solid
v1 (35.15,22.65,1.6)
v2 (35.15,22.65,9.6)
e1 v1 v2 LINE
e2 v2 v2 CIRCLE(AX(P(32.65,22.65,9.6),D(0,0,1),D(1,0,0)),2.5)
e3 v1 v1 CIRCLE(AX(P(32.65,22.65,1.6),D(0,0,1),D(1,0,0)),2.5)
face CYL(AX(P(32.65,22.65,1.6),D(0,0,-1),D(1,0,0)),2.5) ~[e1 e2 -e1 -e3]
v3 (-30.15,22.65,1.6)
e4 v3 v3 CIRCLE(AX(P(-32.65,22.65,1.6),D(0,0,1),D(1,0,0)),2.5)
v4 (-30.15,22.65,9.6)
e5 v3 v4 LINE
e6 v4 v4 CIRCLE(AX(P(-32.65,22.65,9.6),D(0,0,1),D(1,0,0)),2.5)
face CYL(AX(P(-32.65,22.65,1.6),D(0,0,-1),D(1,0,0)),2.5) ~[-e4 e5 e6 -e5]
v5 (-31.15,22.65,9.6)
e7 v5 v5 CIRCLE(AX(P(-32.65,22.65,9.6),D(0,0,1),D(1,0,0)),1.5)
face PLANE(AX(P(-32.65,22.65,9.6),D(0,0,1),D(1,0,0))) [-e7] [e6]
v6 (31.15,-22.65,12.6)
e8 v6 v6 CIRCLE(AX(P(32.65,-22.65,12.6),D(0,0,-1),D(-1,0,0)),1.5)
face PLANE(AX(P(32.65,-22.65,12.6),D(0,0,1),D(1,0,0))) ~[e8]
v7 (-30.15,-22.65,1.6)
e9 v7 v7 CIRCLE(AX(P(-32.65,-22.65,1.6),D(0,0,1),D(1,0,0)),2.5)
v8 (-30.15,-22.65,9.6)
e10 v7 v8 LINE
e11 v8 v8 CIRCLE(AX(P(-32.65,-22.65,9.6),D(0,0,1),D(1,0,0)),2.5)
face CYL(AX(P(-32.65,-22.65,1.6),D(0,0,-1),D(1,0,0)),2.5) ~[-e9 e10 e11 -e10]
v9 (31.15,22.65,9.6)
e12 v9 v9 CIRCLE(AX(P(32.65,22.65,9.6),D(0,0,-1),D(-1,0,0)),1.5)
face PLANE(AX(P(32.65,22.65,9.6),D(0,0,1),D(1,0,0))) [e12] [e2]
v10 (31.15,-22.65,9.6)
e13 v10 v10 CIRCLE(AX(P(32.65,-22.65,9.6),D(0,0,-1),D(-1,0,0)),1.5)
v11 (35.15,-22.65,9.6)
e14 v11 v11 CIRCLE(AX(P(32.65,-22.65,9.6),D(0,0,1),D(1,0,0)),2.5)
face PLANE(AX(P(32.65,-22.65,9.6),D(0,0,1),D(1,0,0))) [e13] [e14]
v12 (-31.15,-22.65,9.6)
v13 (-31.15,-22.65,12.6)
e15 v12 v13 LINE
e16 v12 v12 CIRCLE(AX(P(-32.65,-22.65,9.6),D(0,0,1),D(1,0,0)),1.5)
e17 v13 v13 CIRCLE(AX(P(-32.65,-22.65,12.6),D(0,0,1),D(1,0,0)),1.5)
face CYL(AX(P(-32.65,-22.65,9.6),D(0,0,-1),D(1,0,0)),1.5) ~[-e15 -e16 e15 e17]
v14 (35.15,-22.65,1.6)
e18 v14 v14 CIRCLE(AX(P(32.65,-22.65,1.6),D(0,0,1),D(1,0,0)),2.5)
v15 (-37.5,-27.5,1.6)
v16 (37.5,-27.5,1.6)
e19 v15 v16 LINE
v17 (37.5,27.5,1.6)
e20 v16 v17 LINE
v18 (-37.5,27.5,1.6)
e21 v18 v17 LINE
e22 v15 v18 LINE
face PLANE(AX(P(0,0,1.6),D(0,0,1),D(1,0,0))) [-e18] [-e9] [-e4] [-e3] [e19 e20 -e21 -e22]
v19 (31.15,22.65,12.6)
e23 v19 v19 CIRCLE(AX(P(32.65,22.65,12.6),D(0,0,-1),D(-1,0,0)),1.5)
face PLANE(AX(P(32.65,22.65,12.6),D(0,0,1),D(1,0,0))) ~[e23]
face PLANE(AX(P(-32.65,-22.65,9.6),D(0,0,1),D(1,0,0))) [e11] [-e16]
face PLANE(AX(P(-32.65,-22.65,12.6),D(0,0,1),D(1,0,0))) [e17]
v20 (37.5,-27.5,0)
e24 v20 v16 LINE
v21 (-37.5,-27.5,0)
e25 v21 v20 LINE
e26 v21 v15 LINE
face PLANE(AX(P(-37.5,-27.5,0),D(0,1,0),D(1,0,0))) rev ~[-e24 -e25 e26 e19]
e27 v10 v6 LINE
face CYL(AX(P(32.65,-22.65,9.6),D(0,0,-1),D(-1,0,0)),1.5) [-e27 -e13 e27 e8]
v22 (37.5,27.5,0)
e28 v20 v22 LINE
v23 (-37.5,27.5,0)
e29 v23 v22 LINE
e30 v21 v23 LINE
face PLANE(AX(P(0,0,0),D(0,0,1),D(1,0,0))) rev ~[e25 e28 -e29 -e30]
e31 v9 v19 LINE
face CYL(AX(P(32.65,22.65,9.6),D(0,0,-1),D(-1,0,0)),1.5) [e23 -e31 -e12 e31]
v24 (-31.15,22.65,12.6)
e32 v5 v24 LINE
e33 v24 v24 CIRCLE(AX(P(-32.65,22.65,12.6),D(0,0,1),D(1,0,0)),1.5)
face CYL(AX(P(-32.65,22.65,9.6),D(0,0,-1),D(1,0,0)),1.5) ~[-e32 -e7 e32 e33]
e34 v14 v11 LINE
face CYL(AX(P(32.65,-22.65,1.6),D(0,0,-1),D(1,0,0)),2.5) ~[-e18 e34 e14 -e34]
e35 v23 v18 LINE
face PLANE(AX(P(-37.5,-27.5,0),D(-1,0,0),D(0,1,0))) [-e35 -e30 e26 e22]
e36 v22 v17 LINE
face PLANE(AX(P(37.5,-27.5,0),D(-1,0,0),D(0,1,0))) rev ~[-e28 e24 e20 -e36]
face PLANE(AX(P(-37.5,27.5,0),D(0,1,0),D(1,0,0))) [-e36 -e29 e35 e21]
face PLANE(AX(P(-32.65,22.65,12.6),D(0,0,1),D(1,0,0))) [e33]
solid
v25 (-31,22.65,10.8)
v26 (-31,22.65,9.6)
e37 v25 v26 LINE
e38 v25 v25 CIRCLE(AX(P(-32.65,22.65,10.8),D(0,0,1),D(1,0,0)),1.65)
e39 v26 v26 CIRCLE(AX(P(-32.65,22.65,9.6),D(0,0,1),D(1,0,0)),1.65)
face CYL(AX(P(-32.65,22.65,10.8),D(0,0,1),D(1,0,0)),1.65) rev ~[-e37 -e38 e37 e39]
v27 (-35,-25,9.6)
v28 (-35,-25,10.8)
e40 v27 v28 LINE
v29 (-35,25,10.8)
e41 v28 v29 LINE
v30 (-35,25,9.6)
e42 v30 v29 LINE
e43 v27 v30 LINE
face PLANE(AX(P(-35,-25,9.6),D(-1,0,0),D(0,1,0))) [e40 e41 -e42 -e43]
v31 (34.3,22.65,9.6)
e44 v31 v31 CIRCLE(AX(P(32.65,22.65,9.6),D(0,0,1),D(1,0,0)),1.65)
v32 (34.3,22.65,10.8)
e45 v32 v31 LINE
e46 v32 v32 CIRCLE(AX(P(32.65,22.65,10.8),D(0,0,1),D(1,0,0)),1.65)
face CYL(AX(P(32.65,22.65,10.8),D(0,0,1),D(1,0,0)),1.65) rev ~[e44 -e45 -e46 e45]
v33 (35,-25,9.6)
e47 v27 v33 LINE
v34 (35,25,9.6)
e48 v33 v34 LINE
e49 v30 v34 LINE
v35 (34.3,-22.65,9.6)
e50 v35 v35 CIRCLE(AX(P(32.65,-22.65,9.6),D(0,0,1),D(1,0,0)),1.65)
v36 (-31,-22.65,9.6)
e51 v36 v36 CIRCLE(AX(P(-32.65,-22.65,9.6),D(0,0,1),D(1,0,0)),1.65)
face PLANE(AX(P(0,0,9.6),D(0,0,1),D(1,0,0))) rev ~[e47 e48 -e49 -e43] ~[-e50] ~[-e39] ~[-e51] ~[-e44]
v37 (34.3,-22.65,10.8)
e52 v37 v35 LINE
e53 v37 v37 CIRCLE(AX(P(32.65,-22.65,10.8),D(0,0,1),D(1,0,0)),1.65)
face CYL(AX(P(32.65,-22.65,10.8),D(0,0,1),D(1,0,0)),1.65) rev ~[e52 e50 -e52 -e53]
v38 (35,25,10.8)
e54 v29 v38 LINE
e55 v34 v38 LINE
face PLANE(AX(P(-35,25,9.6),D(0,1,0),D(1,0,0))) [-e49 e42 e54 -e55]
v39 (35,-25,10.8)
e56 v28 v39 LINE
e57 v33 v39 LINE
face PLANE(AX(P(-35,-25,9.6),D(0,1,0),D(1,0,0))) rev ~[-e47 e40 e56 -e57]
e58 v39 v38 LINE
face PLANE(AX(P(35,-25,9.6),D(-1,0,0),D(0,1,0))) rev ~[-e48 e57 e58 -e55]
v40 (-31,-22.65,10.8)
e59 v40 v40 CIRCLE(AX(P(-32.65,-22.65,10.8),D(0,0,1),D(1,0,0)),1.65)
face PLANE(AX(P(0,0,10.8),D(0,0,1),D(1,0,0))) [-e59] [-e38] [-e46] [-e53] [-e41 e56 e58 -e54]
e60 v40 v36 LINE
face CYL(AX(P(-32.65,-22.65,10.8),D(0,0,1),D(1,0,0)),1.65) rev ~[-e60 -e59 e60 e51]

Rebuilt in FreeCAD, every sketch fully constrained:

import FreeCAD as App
import Part
import Sketcher

V = App.Vector

doc = App.newDocument("Part")
body = doc.addObject("PartDesign::Body", "Body")

sketch1 = doc.addObject("Sketcher::SketchObject", "Sketch")
body.addObject(sketch1)
sketch1.AttachmentSupport = (doc.XY_Plane, [""])
sketch1.MapMode = "FlatFace"
sketch1.addGeometry(Part.LineSegment(V(-35, 25, 0), V(-35, -25, 0)), False)
sketch1.addGeometry(Part.LineSegment(V(-35, -25, 0), V(35, -25, 0)), False)
sketch1.addGeometry(Part.LineSegment(V(35, -25, 0), V(35, 25, 0)), False)
sketch1.addGeometry(Part.LineSegment(V(35, 25, 0), V(-35, 25, 0)), False)
sketch1.addConstraint(Sketcher.Constraint("Coincident", 0, 2, 1, 1))
sketch1.addConstraint(Sketcher.Constraint("Coincident", 1, 2, 2, 1))
sketch1.addConstraint(Sketcher.Constraint("Coincident", 2, 2, 3, 1))
sketch1.addConstraint(Sketcher.Constraint("Coincident", 3, 2, 0, 1))
sketch1.addConstraint(Sketcher.Constraint("Vertical", 0))
sketch1.addConstraint(Sketcher.Constraint("Horizontal", 1))
sketch1.addConstraint(Sketcher.Constraint("Vertical", 2))
sketch1.addConstraint(Sketcher.Constraint("Horizontal", 3))
sketch1.addConstraint(Sketcher.Constraint("Symmetric", 0, 2, 2, 2, -1, 1))
sketch1.addConstraint(Sketcher.Constraint("DistanceX", 1, 1, 1, 2, 70.0))
sketch1.addConstraint(Sketcher.Constraint("DistanceY", 0, 2, 0, 1, 50.0))
pad1 = doc.addObject("PartDesign::Pad", "Pad")
body.addObject(pad1)
pad1.Profile = sketch1
pad1.Length = 1.2

sketch2 = doc.addObject("Sketcher::SketchObject", "Sketch001")
body.addObject(sketch2)
sketch2.AttachmentSupport = (doc.XY_Plane, [""])
sketch2.MapMode = "FlatFace"
sketch2.AttachmentOffset = App.Placement(V(0, 0, 1.2), App.Rotation())
sketch2.addGeometry(Part.Circle(V(-32.65, 22.65, 0), V(0, 0, 1), 1.65), False)
sketch2.addGeometry(Part.Circle(V(32.65, 22.65, 0), V(0, 0, 1), 1.65), False)
sketch2.addGeometry(Part.Circle(V(-32.65, -22.65, 0), V(0, 0, 1), 1.65), False)
sketch2.addGeometry(Part.Circle(V(32.65, -22.65, 0), V(0, 0, 1), 1.65), False)
sketch2.addConstraint(Sketcher.Constraint("Equal", 0, 1))
sketch2.addConstraint(Sketcher.Constraint("Equal", 1, 2))
sketch2.addConstraint(Sketcher.Constraint("Equal", 2, 3))
sketch2.addConstraint(Sketcher.Constraint("Symmetric", 1, 3, 2, 3, -1, 1))
sketch2.addConstraint(Sketcher.Constraint("Symmetric", 0, 3, 3, 3, -1, 1))
sketch2.addConstraint(Sketcher.Constraint("Symmetric", 0, 3, 1, 3, -2))
sketch2.addConstraint(Sketcher.Constraint("Diameter", 0, 3.3))
sketch2.addConstraint(Sketcher.Constraint("DistanceX", 0, 3, 1, 3, 65.3))
sketch2.addConstraint(Sketcher.Constraint("DistanceY", 2, 3, 0, 3, 45.3))
pocket1 = doc.addObject("PartDesign::Pocket", "Pocket")
body.addObject(pocket1)
pocket1.Profile = sketch2
pocket1.Length = 1.2
body2 = doc.addObject("PartDesign::Body", "Body001")
doc.recompute()

body.Placement = App.Placement(V(0, 0, 9.6), App.Rotation(V(0, 0, 1), 0))
boolean = doc.addObject("PartDesign::Boolean", "Boolean")
body2.addObject(boolean)
boolean.Type = "Fuse"
boolean.addObjects([body])
body3 = doc.addObject("PartDesign::Body", "Body002")

sketch3 = doc.addObject("Sketcher::SketchObject", "Sketch002")
body3.addObject(sketch3)
sketch3.AttachmentSupport = (doc.getObject("XY_Plane002"), [""])
sketch3.MapMode = "FlatFace"
sketch3.addGeometry(Part.LineSegment(V(-37.5, 27.5, 0), V(-37.5, -27.5, 0)), False)
sketch3.addGeometry(Part.LineSegment(V(-37.5, -27.5, 0), V(37.5, -27.5, 0)), False)
sketch3.addGeometry(Part.LineSegment(V(37.5, -27.5, 0), V(37.5, 27.5, 0)), False)
sketch3.addGeometry(Part.LineSegment(V(37.5, 27.5, 0), V(-37.5, 27.5, 0)), False)
sketch3.addConstraint(Sketcher.Constraint("Coincident", 0, 2, 1, 1))
sketch3.addConstraint(Sketcher.Constraint("Coincident", 1, 2, 2, 1))
sketch3.addConstraint(Sketcher.Constraint("Coincident", 2, 2, 3, 1))
sketch3.addConstraint(Sketcher.Constraint("Coincident", 3, 2, 0, 1))
sketch3.addConstraint(Sketcher.Constraint("Vertical", 0))
sketch3.addConstraint(Sketcher.Constraint("Horizontal", 1))
sketch3.addConstraint(Sketcher.Constraint("Vertical", 2))
sketch3.addConstraint(Sketcher.Constraint("Horizontal", 3))
sketch3.addConstraint(Sketcher.Constraint("Symmetric", 0, 2, 2, 2, -1, 1))
sketch3.addConstraint(Sketcher.Constraint("DistanceX", 1, 1, 1, 2, 75.0))
sketch3.addConstraint(Sketcher.Constraint("DistanceY", 0, 2, 0, 1, 55.0))
pad2 = doc.addObject("PartDesign::Pad", "Pad001")
body3.addObject(pad2)
pad2.Profile = sketch3
pad2.Length = 1.6

sketch4 = doc.addObject("Sketcher::SketchObject", "Sketch003")
body3.addObject(sketch4)
sketch4.AttachmentSupport = (doc.getObject("XY_Plane002"), [""])
sketch4.MapMode = "FlatFace"
sketch4.AttachmentOffset = App.Placement(V(0, 0, 1.6), App.Rotation())
sketch4.addGeometry(Part.Circle(V(-32.65, 22.65, 0), V(0, 0, 1), 2.5), False)
sketch4.addGeometry(Part.Circle(V(-32.65, -22.65, 0), V(0, 0, 1), 2.5), False)
sketch4.addGeometry(Part.Circle(V(32.65, 22.65, 0), V(0, 0, 1), 2.5), False)
sketch4.addGeometry(Part.Circle(V(32.65, -22.65, 0), V(0, 0, 1), 2.5), False)
sketch4.addConstraint(Sketcher.Constraint("Equal", 0, 1))
sketch4.addConstraint(Sketcher.Constraint("Equal", 1, 2))
sketch4.addConstraint(Sketcher.Constraint("Equal", 2, 3))
sketch4.addConstraint(Sketcher.Constraint("Symmetric", 1, 3, 2, 3, -1, 1))
sketch4.addConstraint(Sketcher.Constraint("Symmetric", 0, 3, 3, 3, -1, 1))
sketch4.addConstraint(Sketcher.Constraint("Symmetric", 0, 3, 2, 3, -2))
sketch4.addConstraint(Sketcher.Constraint("Diameter", 0, 5.0))
sketch4.addConstraint(Sketcher.Constraint("DistanceY", 1, 3, 0, 3, 45.3))
sketch4.addConstraint(Sketcher.Constraint("DistanceX", 0, 3, 2, 3, 65.3))
pad3 = doc.addObject("PartDesign::Pad", "Pad002")
body3.addObject(pad3)
pad3.Profile = sketch4
pad3.Length = 8

sketch5 = doc.addObject("Sketcher::SketchObject", "Sketch004")
body3.addObject(sketch5)
sketch5.AttachmentSupport = (doc.getObject("XY_Plane002"), [""])
sketch5.MapMode = "FlatFace"
sketch5.AttachmentOffset = App.Placement(V(0, 0, 9.6), App.Rotation())
sketch5.addGeometry(Part.Circle(V(-32.65, -22.65, 0), V(0, 0, 1), 1.5), False)
sketch5.addGeometry(Part.Circle(V(-32.65, 22.65, 0), V(0, 0, 1), 1.5), False)
sketch5.addConstraint(Sketcher.Constraint("Equal", 0, 1))
sketch5.addConstraint(Sketcher.Constraint("Symmetric", 0, 3, 1, 3, -1))
sketch5.addConstraint(Sketcher.Constraint("Diameter", 0, 3.0))
sketch5.addConstraint(Sketcher.Constraint("DistanceY", 0, 3, 1, 3, 45.3))
sketch5.addConstraint(Sketcher.Constraint("DistanceX", 0, 3, -1, 1, 32.65))
pad4 = doc.addObject("PartDesign::Pad", "Pad003")
body3.addObject(pad4)
pad4.Profile = sketch5
pad4.Length = 3
doc.recompute()

mirrored = doc.addObject("PartDesign::Mirrored", "Mirrored")
body3.addObject(mirrored)
mirrored.Originals = [pad4]
mirrored.MirrorPlane = (doc.getObject("YZ_Plane002"), [""])
body3.Tip = mirrored

doc.recompute()
